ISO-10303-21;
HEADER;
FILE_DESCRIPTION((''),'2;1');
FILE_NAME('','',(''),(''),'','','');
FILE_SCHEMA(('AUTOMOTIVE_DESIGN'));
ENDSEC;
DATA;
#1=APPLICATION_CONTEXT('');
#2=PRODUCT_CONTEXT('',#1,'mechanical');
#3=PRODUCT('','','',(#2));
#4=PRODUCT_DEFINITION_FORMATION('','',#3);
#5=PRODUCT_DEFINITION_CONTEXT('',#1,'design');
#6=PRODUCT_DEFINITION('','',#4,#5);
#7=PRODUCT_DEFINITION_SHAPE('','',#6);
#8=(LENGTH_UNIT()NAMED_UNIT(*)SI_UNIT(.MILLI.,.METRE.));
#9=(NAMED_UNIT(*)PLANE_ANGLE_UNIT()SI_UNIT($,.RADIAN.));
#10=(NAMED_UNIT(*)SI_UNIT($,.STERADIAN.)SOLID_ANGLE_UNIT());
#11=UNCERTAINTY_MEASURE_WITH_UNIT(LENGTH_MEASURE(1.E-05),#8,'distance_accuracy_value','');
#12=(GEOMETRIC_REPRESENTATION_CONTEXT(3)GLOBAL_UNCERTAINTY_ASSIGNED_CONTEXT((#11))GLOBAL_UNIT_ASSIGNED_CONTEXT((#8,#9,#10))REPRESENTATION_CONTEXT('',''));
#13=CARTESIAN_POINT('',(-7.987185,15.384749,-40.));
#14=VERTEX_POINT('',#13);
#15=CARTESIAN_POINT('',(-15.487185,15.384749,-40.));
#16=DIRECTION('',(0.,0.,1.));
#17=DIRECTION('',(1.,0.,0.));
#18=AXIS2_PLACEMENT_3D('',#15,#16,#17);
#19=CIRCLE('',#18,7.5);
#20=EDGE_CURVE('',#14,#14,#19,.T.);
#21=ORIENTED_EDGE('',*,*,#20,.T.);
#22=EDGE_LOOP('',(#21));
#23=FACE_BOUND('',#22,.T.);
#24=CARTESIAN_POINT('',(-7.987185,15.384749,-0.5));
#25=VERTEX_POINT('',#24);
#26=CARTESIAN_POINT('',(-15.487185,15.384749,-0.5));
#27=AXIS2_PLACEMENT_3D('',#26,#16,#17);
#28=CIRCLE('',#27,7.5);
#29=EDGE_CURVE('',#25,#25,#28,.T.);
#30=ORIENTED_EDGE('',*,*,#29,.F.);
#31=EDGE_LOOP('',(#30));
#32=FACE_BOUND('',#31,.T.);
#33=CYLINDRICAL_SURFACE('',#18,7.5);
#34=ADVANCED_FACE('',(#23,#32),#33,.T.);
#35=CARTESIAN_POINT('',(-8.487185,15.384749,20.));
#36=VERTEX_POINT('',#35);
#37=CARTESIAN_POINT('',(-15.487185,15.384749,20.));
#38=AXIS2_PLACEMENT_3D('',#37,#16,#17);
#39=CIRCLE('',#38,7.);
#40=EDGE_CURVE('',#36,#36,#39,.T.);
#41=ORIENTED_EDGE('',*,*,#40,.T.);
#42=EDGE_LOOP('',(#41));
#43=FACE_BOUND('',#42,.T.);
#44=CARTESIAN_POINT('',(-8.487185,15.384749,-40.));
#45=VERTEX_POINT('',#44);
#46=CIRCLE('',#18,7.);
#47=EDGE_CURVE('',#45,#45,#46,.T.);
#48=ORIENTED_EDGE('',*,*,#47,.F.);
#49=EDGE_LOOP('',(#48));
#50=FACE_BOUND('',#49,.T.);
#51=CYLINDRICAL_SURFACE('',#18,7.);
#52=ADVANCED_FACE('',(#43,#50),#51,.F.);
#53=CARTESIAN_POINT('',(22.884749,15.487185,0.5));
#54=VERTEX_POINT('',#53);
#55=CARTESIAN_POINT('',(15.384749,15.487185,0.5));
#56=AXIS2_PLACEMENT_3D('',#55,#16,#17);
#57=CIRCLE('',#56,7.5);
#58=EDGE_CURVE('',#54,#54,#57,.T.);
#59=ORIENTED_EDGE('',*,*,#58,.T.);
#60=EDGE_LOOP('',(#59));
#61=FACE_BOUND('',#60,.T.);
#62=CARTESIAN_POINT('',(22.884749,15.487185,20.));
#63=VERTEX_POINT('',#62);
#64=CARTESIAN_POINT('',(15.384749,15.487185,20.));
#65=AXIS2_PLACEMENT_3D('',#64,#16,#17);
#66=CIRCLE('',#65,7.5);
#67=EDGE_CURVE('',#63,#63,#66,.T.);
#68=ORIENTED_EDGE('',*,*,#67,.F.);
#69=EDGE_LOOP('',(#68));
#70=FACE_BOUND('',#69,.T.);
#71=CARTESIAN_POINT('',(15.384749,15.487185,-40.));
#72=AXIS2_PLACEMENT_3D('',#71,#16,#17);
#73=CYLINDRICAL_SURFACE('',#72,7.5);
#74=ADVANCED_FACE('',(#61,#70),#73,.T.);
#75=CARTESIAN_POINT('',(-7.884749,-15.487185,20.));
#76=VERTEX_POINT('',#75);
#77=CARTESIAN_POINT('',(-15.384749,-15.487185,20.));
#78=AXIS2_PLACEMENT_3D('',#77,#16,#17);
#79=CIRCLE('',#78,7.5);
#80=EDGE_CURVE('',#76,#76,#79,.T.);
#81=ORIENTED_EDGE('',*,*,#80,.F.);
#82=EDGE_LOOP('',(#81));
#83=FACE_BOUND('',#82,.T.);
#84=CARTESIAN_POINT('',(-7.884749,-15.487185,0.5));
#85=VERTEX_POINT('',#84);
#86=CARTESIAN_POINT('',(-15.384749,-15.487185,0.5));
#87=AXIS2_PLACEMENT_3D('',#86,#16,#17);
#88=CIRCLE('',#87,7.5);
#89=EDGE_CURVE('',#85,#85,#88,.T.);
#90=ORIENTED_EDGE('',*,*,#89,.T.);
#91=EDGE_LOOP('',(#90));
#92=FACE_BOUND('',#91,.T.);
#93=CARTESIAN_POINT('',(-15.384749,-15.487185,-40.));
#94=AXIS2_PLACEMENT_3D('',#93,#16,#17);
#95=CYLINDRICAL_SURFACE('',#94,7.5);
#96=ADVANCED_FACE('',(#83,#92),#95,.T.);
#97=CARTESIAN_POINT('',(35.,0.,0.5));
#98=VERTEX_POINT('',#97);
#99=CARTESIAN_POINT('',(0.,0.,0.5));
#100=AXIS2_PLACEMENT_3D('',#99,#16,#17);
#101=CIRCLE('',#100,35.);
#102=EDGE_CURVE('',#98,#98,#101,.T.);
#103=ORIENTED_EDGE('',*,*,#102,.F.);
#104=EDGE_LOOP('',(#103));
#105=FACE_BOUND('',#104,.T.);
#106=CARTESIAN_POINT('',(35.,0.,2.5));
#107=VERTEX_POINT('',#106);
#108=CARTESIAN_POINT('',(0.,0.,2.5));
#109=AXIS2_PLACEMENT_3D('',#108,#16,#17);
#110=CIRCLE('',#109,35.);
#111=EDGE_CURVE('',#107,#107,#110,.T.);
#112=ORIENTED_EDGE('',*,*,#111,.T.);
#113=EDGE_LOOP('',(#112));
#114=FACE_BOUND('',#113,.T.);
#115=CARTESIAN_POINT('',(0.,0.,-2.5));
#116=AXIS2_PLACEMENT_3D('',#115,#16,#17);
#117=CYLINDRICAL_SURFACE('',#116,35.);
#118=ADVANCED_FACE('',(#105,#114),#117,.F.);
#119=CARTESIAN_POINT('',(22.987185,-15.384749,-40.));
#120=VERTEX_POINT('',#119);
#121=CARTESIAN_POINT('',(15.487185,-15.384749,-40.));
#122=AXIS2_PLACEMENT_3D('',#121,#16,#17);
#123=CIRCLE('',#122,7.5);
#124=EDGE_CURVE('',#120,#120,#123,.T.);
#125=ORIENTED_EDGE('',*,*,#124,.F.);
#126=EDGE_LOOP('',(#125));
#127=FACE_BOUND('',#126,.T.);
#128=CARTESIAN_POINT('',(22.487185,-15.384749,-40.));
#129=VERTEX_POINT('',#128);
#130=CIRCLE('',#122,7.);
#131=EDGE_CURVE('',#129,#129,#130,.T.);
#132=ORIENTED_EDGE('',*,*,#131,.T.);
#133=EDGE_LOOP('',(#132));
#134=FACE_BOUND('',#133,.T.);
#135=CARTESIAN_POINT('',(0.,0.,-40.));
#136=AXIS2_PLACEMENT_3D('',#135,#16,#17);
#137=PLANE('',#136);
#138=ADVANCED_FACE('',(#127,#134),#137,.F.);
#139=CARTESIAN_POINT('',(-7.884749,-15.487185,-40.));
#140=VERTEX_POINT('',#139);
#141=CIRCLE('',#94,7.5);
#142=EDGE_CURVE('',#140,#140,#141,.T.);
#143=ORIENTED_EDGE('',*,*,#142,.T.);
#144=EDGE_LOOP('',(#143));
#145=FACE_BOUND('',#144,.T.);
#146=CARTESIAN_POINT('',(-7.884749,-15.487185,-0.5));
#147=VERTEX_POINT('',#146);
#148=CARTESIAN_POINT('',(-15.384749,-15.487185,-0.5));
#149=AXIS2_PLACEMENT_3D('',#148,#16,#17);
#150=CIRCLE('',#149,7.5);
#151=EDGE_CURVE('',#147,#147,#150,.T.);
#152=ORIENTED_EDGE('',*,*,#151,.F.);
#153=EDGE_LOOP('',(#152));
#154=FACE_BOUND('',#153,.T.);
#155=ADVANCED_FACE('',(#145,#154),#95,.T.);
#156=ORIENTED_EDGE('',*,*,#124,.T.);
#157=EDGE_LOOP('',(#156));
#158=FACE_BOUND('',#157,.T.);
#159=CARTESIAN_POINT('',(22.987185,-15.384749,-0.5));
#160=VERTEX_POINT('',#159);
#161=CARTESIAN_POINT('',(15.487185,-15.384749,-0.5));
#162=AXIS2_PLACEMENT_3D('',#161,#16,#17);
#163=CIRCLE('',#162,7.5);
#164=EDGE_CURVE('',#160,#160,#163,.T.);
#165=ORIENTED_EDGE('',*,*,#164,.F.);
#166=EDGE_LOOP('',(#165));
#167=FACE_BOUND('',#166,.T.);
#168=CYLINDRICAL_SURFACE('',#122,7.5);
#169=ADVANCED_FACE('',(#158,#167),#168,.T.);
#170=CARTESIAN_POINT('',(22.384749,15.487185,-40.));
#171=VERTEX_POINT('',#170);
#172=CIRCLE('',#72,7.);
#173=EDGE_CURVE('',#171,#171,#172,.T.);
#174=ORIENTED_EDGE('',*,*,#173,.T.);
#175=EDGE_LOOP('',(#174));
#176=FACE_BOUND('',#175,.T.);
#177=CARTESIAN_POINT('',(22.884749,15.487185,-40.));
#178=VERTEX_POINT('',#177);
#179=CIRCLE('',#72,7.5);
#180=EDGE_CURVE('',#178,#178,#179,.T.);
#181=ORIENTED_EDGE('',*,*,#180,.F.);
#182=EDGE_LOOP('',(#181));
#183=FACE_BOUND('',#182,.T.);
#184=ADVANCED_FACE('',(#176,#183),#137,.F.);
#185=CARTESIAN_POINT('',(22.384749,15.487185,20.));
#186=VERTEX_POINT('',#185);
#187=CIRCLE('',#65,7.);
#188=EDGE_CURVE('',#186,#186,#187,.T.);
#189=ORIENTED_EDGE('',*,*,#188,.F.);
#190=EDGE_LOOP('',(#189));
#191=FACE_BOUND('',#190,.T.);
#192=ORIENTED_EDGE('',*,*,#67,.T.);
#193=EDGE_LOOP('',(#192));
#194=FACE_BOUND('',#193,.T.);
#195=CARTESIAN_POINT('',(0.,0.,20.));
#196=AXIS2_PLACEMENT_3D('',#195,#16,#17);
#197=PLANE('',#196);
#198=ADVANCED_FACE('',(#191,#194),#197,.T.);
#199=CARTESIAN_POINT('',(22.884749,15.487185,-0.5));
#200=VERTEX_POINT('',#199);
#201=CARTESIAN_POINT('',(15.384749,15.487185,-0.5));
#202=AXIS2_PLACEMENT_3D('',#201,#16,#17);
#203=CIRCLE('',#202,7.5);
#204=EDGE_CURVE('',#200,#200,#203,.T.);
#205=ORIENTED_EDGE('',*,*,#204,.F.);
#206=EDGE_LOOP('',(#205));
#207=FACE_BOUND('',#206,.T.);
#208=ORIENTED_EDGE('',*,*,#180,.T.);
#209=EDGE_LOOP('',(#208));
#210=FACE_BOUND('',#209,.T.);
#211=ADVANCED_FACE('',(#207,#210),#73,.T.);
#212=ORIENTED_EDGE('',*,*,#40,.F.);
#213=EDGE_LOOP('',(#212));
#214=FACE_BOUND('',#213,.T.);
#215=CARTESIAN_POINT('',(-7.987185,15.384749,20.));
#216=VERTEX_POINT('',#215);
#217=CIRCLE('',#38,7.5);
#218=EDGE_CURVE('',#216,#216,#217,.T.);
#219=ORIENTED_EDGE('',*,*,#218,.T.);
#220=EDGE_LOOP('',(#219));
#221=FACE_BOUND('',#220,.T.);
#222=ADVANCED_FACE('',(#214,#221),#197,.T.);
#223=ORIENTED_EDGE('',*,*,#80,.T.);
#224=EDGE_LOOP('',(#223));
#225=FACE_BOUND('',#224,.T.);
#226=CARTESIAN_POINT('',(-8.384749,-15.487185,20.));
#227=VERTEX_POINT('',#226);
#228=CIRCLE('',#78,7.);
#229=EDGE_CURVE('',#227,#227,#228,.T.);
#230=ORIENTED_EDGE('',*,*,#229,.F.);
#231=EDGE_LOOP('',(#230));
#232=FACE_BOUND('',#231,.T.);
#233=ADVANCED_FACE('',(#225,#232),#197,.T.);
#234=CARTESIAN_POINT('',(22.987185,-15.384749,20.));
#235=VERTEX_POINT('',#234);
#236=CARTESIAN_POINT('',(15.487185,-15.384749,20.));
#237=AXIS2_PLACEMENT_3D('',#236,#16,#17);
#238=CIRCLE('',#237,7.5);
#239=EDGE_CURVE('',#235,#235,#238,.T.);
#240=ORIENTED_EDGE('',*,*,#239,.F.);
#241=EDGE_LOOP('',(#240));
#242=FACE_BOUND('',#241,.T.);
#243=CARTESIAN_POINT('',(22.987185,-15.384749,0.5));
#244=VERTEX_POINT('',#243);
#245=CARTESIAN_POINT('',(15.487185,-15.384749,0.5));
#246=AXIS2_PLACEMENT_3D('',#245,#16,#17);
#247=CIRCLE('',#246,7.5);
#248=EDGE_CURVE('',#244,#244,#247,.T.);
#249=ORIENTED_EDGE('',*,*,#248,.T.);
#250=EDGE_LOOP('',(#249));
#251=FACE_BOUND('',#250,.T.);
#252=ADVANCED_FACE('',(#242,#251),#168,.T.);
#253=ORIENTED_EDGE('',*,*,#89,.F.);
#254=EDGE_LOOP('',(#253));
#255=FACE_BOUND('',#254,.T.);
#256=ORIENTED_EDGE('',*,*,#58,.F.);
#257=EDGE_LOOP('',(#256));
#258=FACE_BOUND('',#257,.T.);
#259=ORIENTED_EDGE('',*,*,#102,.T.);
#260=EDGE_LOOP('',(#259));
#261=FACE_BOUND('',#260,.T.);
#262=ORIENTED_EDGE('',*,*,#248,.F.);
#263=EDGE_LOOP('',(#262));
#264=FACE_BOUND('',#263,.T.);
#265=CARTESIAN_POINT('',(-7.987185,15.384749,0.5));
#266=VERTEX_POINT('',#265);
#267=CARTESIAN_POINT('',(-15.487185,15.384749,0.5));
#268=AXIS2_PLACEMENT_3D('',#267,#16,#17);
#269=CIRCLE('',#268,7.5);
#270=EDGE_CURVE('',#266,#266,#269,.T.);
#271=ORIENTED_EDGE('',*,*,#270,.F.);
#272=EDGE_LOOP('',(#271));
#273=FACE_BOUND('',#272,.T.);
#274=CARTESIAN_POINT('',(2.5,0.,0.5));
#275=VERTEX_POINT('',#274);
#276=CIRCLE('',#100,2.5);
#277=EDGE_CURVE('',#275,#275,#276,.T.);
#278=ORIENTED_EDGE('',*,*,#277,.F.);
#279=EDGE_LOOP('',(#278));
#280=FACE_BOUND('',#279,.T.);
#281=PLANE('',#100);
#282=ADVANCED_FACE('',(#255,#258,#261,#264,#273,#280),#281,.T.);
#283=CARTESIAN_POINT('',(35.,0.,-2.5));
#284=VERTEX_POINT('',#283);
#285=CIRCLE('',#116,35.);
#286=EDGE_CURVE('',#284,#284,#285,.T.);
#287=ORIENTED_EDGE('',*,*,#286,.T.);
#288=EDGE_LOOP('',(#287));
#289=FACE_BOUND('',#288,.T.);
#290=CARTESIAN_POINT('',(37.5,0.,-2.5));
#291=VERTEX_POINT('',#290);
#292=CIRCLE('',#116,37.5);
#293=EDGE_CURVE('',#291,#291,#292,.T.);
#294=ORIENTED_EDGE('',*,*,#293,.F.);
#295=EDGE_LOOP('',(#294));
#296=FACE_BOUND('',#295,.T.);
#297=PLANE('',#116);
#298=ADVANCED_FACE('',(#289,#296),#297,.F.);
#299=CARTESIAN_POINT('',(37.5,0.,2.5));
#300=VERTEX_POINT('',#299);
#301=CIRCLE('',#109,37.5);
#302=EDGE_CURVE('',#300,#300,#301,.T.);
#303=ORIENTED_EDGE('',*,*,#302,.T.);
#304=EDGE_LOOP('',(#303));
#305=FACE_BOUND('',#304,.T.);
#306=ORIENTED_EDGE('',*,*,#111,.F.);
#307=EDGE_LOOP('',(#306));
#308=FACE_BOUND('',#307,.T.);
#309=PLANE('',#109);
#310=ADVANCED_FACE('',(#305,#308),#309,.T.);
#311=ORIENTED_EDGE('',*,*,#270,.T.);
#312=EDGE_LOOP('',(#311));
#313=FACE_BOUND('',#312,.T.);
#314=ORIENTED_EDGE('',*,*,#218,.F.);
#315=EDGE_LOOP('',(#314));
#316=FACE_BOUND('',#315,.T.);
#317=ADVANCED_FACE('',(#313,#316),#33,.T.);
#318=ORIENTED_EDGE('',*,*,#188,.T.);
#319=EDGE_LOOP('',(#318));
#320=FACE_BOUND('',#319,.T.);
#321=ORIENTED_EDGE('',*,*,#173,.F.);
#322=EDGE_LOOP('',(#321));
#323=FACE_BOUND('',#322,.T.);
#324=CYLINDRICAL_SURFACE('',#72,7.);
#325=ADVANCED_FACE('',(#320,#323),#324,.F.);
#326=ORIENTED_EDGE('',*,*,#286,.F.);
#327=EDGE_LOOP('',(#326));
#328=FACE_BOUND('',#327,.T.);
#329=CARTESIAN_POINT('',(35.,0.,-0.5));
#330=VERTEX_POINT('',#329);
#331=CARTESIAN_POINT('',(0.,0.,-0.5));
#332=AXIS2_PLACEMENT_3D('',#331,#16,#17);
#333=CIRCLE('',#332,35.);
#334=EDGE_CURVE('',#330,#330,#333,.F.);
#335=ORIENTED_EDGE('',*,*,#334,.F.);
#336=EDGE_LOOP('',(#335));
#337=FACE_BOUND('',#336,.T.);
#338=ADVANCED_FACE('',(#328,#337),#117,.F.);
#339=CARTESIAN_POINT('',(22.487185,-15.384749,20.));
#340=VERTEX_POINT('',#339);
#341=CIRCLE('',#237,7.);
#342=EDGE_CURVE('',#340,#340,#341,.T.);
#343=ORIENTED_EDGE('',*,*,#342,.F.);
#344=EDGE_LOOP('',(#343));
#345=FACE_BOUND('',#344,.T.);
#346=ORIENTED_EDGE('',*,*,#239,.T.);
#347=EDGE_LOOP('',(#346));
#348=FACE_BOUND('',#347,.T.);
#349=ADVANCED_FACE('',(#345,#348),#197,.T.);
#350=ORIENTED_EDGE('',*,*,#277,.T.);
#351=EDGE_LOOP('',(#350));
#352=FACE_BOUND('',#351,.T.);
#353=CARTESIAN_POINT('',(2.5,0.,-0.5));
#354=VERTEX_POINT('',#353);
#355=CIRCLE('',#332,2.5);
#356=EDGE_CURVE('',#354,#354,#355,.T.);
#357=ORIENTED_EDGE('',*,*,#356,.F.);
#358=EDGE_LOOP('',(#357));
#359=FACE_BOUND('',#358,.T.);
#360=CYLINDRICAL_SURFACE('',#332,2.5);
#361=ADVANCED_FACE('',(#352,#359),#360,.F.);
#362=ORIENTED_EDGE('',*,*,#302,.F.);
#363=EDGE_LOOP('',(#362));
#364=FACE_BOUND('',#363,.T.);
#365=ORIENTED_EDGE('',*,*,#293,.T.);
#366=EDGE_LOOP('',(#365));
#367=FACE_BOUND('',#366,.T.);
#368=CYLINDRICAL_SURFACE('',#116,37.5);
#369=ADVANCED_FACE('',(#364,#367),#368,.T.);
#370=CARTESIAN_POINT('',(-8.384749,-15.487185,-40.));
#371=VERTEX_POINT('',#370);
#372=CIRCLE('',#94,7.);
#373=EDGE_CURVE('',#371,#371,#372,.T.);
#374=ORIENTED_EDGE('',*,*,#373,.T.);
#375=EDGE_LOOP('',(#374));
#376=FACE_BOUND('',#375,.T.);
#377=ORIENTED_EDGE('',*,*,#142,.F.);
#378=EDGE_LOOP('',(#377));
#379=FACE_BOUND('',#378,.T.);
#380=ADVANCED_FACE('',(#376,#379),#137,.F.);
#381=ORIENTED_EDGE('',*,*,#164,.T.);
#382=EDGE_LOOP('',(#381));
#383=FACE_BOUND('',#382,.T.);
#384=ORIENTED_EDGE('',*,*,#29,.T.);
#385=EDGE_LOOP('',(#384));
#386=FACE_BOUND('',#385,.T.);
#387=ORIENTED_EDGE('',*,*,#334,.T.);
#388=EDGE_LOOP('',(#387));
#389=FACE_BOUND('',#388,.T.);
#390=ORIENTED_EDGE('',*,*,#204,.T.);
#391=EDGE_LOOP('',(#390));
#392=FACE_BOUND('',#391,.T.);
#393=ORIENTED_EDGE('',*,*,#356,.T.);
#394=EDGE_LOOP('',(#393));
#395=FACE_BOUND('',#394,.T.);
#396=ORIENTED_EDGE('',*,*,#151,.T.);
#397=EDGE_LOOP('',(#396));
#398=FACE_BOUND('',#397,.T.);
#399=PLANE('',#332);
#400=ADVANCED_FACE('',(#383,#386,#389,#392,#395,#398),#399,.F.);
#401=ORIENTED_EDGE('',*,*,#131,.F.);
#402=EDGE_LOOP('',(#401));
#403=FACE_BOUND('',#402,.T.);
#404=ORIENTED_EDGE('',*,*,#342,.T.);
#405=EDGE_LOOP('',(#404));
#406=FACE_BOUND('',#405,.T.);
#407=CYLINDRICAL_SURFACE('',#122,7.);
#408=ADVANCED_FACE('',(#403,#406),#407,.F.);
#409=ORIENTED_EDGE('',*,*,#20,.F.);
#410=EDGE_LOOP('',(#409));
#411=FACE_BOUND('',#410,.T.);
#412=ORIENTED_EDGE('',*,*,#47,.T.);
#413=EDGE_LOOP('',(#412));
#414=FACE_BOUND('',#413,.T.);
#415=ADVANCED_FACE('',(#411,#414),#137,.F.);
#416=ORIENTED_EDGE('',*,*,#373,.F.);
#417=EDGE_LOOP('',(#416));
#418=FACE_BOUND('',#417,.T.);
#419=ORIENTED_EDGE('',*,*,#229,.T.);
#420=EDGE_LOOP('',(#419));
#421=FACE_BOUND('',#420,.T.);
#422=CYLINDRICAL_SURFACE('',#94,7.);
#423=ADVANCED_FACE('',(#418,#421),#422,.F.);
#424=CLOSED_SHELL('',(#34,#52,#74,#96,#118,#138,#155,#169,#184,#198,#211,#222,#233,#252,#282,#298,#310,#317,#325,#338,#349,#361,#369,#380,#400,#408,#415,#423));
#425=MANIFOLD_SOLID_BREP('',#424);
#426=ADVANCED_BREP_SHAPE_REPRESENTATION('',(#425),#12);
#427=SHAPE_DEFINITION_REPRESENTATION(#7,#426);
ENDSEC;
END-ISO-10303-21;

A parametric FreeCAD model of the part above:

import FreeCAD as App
import Part
import Sketcher

V = App.Vector
Q = App.Units.Quantity

doc = App.newDocument("Part")
body = doc.addObject("PartDesign::Body", "Body")

# Sketch on XY plane
sketch1 = doc.addObject("Sketcher::SketchObject", "Sketch")
body.addObject(sketch1)
sketch1.AttachmentSupport = (doc.XY_Plane, [""])
sketch1.MapMode = "FlatFace"
sketch1.addGeometry([
    Part.Circle(V(0, 0, 0), V(0, 0, 1), 38),
    Part.Circle(V(0, 0, 0), V(0, 0, 1), 35),
], False)
sketch1.addConstraint([
    Sketcher.Constraint("Coincident", 0, 3, -1, 1),
    Sketcher.Constraint("Coincident", 1, 3, -1, 1),
    Sketcher.Constraint("Diameter", 0, Q("75 mm")),
    Sketcher.Constraint("Diameter", 1, Q("70 mm")),
])
pad1 = doc.addObject("PartDesign::Pad", "Pad")
body.addObject(pad1)
pad1.Profile = sketch1
pad1.Type = "TwoLengths"
pad1.Length = 2.5
pad1.Length2 = 2.5

# Sketch on XY plane
sketch2 = doc.addObject("Sketcher::SketchObject", "Sketch001")
body.addObject(sketch2)
sketch2.AttachmentSupport = (doc.XY_Plane, [""])
sketch2.MapMode = "FlatFace"
sketch2.addGeometry([
    Part.Circle(V(0, 0, 0), V(0, 0, 1), 35),  # 0
    Part.Circle(V(-15.4, -15.5, 0), V(0, 0, 1), 7.5),  # 1
    Part.Circle(V(0, 0, 0), V(0, 0, 1), 2.5),  # 2
    Part.Circle(V(15.5, -15.4, 0), V(0, 0, 1), 7.5),  # 3
    Part.Circle(V(-15.5, 15.4, 0), V(0, 0, 1), 7.5),  # 4
    Part.Circle(V(15.4, 15.5, 0), V(0, 0, 1), 7.5),  # 5
], False)
sketch2.addConstraint([
    Sketcher.Constraint("Coincident", 0, 3, -1, 1),
    Sketcher.Constraint("Coincident", 2, 3, -1, 1),
    Sketcher.Constraint("Equal", 1, 3),
    Sketcher.Constraint("Equal", 3, 4),
    Sketcher.Constraint("Equal", 4, 5),
    Sketcher.Constraint("Symmetric", 3, 3, 4, 3, -1, 1),
    Sketcher.Constraint("Symmetric", 1, 3, 5, 3, -1, 1),
    Sketcher.Constraint("Diameter", 0, Q("70 mm")),
    Sketcher.Constraint("Diameter", 1, Q("15 mm")),
    Sketcher.Constraint("Diameter", 2, Q("5 mm")),
    Sketcher.Constraint("DistanceX", 1, 3, -1, 1, Q("15.384749 mm")),
    Sketcher.Constraint("DistanceY", 3, 3, -1, 1, Q("15.384749 mm")),
    Sketcher.Constraint("DistanceX", 4, 3, 3, 3, Q("30.974369 mm")),
    Sketcher.Constraint("DistanceY", 1, 3, 5, 3, Q("30.974369 mm")),
])
pad2 = doc.addObject("PartDesign::Pad", "Pad001")
body.addObject(pad2)
pad2.Profile = sketch2
pad2.Type = "TwoLengths"
pad2.Length = 0.5
pad2.Length2 = 0.5

# Sketch on XY plane
sketch3 = doc.addObject("Sketcher::SketchObject", "Sketch002")
body.addObject(sketch3)
sketch3.AttachmentSupport = (doc.XY_Plane, [""])
sketch3.MapMode = "FlatFace"
sketch3.addGeometry([
    Part.Circle(V(-15, 15, 0), V(0, 0, 1), 8),  # 0
    Part.Circle(V(-15, 15, 0), V(0, 0, 1), 7),  # 1
    Part.Circle(V(15, 15, 0), V(0, 0, 1), 8),  # 2
    Part.Circle(V(15, 15, 0), V(0, 0, 1), 7),  # 3
    Part.Circle(V(15, -15, 0), V(0, 0, 1), 8),  # 4
    Part.Circle(V(15, -15, 0), V(0, 0, 1), 7),  # 5
    Part.Circle(V(-15, -15, 0), V(0, 0, 1), 8),  # 6
    Part.Circle(V(-15, -15, 0), V(0, 0, 1), 7),  # 7
], False)
sketch3.addConstraint([
    Sketcher.Constraint("Coincident", 1, 3, 0, 3),
    Sketcher.Constraint("Coincident", 3, 3, 2, 3),
    Sketcher.Constraint("Coincident", 5, 3, 4, 3),
    Sketcher.Constraint("Coincident", 7, 3, 6, 3),
    Sketcher.Constraint("Equal", 0, 2),
    Sketcher.Constraint("Equal", 1, 3),
    Sketcher.Constraint("Equal", 2, 4),
    Sketcher.Constraint("Equal", 3, 5),
    Sketcher.Constraint("Equal", 4, 6),
    Sketcher.Constraint("Equal", 5, 7),
    Sketcher.Constraint("Symmetric", 0, 3, 4, 3, -1, 1),
    Sketcher.Constraint("Symmetric", 2, 3, 6, 3, -1, 1),
    Sketcher.Constraint("Diameter", 0, Q("15 mm")),
    Sketcher.Constraint("Diameter", 1, Q("14 mm")),
    Sketcher.Constraint("DistanceY", -1, 1, 0, 3, Q("15.384749 mm")),
    Sketcher.Constraint("DistanceX", -1, 1, 2, 3, Q("15.384749 mm")),
    Sketcher.Constraint("DistanceX", 0, 3, 4, 3, Q("30.974369 mm")),
    Sketcher.Constraint("DistanceY", 6, 3, 2, 3, Q("30.974369 mm")),
])
pad3 = doc.addObject("PartDesign::Pad", "Pad002")
body.addObject(pad3)
pad3.Profile = sketch3
pad3.Type = "TwoLengths"
pad3.Length = 20
pad3.Length2 = 40

doc.recompute()
